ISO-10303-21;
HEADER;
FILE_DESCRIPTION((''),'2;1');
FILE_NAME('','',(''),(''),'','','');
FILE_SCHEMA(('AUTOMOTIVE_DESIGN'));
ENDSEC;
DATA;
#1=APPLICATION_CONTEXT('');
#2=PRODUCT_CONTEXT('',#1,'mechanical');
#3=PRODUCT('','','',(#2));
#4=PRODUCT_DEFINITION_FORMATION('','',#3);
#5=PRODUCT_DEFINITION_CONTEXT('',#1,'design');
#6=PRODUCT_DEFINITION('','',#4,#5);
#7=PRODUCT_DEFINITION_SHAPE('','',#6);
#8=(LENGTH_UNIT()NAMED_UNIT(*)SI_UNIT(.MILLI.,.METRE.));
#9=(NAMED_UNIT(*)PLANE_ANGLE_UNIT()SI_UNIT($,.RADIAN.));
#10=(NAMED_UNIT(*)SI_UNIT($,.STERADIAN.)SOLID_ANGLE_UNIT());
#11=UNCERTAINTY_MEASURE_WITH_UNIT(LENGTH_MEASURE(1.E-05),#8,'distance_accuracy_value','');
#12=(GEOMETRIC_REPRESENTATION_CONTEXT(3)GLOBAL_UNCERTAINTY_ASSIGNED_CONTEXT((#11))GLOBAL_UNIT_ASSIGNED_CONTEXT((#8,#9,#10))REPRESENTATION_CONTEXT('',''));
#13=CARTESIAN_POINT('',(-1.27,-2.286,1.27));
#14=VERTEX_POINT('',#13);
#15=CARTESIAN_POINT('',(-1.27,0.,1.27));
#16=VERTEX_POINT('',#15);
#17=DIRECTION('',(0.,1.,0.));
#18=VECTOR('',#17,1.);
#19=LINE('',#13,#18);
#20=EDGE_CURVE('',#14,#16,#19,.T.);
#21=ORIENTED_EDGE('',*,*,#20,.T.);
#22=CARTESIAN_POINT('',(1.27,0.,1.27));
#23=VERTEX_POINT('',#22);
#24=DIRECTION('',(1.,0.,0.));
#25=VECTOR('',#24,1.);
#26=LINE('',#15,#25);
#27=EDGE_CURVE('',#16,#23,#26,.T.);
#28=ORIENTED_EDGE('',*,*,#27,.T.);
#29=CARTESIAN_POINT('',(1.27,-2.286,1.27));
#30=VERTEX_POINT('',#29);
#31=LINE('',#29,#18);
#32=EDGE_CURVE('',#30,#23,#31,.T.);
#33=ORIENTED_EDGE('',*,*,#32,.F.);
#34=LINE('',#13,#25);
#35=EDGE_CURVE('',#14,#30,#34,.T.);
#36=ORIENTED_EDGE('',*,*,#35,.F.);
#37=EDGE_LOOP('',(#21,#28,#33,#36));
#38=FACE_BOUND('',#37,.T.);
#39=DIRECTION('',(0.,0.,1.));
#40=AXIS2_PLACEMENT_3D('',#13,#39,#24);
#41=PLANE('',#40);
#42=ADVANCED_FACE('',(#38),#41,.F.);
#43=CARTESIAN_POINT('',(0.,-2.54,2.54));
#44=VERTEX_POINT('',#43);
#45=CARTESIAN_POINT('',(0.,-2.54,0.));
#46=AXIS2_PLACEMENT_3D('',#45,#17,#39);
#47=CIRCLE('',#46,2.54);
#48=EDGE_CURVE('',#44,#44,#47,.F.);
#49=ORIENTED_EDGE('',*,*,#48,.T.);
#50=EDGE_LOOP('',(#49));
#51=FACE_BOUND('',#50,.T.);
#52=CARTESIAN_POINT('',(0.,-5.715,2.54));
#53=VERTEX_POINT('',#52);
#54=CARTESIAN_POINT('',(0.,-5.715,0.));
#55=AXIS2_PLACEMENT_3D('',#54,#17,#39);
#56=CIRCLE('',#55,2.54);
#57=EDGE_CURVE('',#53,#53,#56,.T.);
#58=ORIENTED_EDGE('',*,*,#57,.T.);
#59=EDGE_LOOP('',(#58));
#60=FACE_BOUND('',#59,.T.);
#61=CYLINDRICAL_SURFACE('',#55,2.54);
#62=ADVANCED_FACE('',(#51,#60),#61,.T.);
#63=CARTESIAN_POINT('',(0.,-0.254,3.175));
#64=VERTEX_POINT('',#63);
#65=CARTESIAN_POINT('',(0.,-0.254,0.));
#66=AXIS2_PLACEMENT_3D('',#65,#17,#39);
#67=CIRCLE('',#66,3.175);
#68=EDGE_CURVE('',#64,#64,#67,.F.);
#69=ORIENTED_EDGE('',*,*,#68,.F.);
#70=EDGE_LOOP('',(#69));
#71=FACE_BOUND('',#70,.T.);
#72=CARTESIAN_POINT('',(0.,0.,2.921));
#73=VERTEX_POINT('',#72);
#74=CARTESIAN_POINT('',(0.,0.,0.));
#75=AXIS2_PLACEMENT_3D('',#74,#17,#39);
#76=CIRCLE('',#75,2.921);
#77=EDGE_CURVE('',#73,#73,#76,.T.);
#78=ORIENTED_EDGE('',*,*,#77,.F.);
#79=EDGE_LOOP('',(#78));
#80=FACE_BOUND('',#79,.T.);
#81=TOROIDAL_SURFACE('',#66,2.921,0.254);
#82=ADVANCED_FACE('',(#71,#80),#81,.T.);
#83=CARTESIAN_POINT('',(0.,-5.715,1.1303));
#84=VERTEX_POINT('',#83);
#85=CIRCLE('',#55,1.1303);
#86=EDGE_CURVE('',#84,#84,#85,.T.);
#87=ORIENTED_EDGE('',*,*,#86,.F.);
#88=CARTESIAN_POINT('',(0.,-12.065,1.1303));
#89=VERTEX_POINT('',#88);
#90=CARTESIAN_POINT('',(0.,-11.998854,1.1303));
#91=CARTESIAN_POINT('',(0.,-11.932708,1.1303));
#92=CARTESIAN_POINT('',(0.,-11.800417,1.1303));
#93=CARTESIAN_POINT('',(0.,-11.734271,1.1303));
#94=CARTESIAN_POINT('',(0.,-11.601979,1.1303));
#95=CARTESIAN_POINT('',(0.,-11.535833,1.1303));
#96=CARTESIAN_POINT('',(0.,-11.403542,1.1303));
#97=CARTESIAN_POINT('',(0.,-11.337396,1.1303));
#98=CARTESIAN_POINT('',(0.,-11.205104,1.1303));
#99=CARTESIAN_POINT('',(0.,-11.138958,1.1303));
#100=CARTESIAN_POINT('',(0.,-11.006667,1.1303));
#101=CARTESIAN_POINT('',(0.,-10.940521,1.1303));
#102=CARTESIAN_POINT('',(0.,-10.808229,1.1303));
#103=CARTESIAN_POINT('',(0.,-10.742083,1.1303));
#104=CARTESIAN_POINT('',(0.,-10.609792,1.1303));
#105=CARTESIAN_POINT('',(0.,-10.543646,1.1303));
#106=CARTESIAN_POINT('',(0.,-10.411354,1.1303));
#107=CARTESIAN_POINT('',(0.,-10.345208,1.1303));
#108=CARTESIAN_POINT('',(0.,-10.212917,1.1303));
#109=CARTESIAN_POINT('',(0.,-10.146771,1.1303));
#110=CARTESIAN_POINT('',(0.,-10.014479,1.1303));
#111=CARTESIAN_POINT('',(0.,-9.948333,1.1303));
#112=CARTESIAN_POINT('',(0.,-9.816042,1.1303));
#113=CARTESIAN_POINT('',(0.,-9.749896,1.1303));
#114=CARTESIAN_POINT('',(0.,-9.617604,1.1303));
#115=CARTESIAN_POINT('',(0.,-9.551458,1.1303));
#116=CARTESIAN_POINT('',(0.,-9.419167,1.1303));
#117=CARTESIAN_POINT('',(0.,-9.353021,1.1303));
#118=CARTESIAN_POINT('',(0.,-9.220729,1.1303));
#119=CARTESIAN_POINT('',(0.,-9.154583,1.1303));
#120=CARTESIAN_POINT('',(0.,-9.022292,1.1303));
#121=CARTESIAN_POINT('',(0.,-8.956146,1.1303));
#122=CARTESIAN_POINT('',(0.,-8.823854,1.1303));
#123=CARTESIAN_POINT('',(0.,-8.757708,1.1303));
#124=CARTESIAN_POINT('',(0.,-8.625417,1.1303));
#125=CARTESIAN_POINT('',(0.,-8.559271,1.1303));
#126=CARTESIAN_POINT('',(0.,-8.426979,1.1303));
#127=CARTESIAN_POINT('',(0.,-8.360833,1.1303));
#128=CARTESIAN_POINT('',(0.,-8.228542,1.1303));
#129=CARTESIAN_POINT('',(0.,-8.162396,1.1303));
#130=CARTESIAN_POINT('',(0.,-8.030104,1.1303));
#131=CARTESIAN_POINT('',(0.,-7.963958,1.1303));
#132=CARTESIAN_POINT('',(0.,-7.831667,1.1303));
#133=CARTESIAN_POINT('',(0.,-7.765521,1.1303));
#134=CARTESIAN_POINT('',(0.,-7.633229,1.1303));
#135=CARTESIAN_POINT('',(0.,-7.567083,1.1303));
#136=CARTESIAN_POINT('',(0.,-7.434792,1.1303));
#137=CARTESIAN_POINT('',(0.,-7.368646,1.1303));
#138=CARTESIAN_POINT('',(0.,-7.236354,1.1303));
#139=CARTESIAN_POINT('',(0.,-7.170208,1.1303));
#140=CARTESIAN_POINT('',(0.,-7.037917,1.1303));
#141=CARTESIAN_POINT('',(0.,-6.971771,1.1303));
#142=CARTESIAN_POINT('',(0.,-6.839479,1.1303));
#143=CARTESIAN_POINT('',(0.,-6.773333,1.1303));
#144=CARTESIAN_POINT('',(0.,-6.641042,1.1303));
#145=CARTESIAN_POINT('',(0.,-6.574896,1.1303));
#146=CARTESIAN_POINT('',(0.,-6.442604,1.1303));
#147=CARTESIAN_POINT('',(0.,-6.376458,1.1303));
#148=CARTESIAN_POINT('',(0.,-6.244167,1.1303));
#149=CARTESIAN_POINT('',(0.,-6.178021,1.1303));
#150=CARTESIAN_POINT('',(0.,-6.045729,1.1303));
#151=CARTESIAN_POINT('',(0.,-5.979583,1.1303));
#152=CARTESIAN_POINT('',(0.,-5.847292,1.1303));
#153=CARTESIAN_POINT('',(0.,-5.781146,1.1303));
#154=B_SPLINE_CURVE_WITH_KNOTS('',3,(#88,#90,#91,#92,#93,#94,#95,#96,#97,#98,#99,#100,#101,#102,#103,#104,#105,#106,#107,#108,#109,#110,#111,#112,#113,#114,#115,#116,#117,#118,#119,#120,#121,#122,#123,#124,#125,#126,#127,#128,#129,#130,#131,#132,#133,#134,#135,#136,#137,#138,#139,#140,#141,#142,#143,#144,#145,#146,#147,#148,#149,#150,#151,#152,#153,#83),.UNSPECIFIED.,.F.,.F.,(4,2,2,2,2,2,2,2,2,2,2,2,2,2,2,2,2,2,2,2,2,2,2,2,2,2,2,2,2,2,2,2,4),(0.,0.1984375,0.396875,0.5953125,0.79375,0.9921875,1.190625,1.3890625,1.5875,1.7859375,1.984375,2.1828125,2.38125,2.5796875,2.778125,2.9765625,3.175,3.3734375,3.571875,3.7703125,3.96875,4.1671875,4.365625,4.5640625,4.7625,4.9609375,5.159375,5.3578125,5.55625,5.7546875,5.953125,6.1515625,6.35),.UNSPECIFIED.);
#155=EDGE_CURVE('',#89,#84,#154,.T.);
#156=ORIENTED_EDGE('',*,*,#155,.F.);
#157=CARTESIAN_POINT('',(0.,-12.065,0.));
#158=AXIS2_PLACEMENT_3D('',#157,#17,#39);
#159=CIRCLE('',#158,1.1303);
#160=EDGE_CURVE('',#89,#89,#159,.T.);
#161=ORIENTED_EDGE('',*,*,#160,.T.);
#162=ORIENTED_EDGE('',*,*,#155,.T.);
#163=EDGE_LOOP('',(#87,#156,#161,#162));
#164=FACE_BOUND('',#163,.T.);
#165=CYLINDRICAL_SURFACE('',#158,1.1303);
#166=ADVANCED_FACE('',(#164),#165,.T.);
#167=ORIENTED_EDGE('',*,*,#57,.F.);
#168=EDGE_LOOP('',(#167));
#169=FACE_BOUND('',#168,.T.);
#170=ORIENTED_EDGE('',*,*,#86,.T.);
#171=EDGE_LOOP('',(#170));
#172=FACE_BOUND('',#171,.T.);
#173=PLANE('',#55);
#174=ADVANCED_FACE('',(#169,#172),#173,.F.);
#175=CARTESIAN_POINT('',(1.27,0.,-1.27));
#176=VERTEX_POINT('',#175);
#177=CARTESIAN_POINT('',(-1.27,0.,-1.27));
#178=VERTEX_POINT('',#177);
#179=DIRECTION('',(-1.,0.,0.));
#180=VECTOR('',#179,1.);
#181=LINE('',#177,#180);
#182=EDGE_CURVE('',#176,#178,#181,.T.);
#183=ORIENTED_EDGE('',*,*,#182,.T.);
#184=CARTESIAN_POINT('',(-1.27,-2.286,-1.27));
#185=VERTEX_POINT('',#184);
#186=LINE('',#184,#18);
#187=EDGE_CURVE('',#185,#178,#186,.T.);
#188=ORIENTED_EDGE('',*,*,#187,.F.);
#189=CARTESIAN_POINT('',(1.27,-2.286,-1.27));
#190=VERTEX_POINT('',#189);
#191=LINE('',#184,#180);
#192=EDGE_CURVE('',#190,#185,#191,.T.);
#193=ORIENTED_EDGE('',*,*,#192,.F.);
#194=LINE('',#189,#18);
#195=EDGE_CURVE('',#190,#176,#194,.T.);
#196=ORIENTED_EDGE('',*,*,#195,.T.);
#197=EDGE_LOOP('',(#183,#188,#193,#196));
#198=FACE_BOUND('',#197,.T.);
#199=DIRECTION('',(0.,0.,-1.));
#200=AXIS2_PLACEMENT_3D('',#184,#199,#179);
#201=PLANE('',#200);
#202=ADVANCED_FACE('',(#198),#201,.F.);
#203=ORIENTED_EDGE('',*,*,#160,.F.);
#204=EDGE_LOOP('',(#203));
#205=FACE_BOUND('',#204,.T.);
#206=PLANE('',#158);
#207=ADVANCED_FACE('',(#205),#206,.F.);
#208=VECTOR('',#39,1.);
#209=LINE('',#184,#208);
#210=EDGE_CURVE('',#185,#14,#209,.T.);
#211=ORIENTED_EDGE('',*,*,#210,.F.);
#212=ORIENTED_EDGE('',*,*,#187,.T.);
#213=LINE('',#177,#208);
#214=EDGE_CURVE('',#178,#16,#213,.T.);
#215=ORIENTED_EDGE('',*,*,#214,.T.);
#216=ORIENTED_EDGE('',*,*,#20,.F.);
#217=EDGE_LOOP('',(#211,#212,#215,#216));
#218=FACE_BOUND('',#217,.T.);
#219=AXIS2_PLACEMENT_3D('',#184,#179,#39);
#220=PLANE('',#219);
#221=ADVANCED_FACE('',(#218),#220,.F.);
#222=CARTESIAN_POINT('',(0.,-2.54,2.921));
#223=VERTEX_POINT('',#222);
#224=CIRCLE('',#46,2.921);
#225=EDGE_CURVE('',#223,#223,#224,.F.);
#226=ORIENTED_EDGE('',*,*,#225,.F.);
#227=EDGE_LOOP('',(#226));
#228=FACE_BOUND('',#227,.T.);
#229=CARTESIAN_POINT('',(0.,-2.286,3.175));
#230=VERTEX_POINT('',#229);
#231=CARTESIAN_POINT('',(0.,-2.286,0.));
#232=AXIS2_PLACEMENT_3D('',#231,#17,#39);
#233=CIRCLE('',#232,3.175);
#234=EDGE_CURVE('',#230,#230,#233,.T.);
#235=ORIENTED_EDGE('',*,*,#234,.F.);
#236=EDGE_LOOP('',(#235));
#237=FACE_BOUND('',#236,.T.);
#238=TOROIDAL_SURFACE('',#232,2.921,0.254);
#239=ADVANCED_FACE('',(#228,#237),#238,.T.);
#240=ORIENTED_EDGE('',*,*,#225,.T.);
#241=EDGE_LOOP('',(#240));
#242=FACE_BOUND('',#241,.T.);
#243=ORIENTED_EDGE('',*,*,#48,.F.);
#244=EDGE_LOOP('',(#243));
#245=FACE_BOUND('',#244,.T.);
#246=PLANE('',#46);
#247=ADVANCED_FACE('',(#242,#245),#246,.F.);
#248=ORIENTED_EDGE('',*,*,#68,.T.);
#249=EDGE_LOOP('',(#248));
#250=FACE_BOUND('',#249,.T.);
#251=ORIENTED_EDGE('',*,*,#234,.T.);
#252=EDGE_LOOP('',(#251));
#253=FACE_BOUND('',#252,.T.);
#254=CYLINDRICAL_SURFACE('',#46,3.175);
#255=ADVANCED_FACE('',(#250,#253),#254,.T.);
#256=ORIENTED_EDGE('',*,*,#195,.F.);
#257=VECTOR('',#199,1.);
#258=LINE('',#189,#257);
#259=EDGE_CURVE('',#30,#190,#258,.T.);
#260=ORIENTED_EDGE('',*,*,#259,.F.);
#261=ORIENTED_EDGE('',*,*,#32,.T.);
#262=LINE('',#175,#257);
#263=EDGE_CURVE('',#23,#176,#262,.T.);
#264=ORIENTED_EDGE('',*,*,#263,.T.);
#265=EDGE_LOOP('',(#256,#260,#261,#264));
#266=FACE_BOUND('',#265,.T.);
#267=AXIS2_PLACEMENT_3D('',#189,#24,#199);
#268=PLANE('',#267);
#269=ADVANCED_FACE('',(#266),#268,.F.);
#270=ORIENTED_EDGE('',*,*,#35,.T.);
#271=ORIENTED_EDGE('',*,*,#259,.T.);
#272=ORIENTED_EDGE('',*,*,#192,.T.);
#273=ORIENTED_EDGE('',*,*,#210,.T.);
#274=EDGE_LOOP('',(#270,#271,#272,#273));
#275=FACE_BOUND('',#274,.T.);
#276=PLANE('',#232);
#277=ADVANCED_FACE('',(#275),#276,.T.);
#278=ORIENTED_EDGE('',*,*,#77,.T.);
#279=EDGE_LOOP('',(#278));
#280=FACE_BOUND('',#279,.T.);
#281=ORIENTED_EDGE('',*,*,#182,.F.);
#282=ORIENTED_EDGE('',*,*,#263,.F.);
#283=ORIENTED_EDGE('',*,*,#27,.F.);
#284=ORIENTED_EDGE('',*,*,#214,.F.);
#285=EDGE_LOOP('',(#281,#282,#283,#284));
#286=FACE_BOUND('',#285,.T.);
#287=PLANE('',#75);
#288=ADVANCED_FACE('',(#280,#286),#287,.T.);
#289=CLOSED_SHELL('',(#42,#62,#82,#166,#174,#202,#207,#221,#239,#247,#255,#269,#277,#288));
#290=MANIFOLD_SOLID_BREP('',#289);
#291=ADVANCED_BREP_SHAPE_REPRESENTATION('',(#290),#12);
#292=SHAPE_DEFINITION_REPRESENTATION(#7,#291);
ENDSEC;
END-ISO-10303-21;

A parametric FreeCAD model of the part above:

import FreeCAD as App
import Part
import Sketcher

V = App.Vector
Q = App.Units.Quantity


def edges_at(feature, points):
    """Names of the edges that pass closest to the given points."""
    edges = feature.Shape.Edges
    near = lambda p: min(range(len(edges)), key=lambda i: edges[i].distToShape(Part.Vertex(*p))[0])
    return sorted({f"Edge{near(p) + 1}" for p in points})

doc = App.newDocument("Part")
body = doc.addObject("PartDesign::Body", "Body")

# Sketch on XZ plane
sketch1 = body.newObject("Sketcher::SketchObject", "Sketch")
sketch1.AttachmentSupport = (doc.getObject("XZ_Plane"), [""])
sketch1.MapMode = "FlatFace"
sketch1.addGeometry(Part.Circle(V(0, 0, 0), V(0, 0, 1), 2.5), False)
sketch1.addConstraint([
    Sketcher.Constraint("Coincident", 0, 3, -1, 1),
    Sketcher.Constraint("Diameter", 0, Q("0.2 in")),
])
pad1 = body.newObject("PartDesign::Pad", "Pad")
pad1.Profile = sketch1
pad1.Length = Q("0.225 in")

# Sketch on XZ plane
sketch2 = body.newObject("Sketcher::SketchObject", "Sketch001")
sketch2.AttachmentSupport = (doc.getObject("XZ_Plane"), [""])
sketch2.MapMode = "FlatFace"
sketch2.addGeometry(Part.Circle(V(0, 0, 0), V(0, 0, 1), 1.1), False)
sketch2.addConstraint([
    Sketcher.Constraint("Coincident", 0, 3, -1, 1),
    Sketcher.Constraint("Diameter", 0, Q("0.089 in")),
])
pad2 = body.newObject("PartDesign::Pad", "Pad001")
pad2.Profile = sketch2
pad2.Length = Q("0.475 in")

# Sketch on XZ plane
sketch3 = body.newObject("Sketcher::SketchObject", "Sketch002")
sketch3.AttachmentSupport = (doc.getObject("XZ_Plane"), [""])
sketch3.MapMode = "FlatFace"
sketch3.addGeometry(Part.Circle(V(0, 0, 0), V(0, 0, 1), 3.2), False)
sketch3.addConstraint([
    Sketcher.Constraint("Coincident", 0, 3, -1, 1),
    Sketcher.Constraint("Diameter", 0, Q("0.25 in")),
])
pad3 = body.newObject("PartDesign::Pad", "Pad002")
pad3.Profile = sketch3
pad3.Length = Q("0.1 in")

# Sketch on XZ plane
sketch4 = body.newObject("Sketcher::SketchObject", "Sketch003")
sketch4.AttachmentSupport = (doc.getObject("XZ_Plane"), [""])
sketch4.MapMode = "FlatFace"
sketch4.addGeometry([
    Part.LineSegment(V(-1.3, -1.3, 0), V(-1.3, 1.3, 0)),
    Part.LineSegment(V(-1.3, 1.3, 0), V(1.3, 1.3, 0)),
    Part.LineSegment(V(1.3, 1.3, 0), V(1.3, -1.3, 0)),
    Part.LineSegment(V(1.3, -1.3, 0), V(-1.3, -1.3, 0)),
], False)
sketch4.addConstraint([
    Sketcher.Constraint("Coincident", 0, 2, 1, 1),
    Sketcher.Constraint("Coincident", 1, 2, 2, 1),
    Sketcher.Constraint("Coincident", 2, 2, 3, 1),
    Sketcher.Constraint("Coincident", 3, 2, 0, 1),
    Sketcher.Constraint("Vertical", 0),
    Sketcher.Constraint("Horizontal", 1),
    Sketcher.Constraint("Vertical", 2),
    Sketcher.Constraint("Horizontal", 3),
    Sketcher.Constraint("Symmetric", 0, 2, 2, 2, -1, 1),
    Sketcher.Constraint("Equal", 3, 0),
    Sketcher.Constraint("DistanceX", 1, 1, 1, 2, Q("0.1 in")),
])
pocket1 = body.newObject("PartDesign::Pocket", "Pocket")
pocket1.Profile = sketch4
pocket1.Length = Q("0.09 in")
pocket1.Reversed = True
doc.recompute()

fillet = body.newObject("PartDesign::Fillet", "Fillet")
fillet.Base = (pocket1, edges_at(pocket1, [(0, -2.54, -3.175), (0, 0, -3.175)]))
fillet.Radius = Q("0.01 in")

doc.recompute()
